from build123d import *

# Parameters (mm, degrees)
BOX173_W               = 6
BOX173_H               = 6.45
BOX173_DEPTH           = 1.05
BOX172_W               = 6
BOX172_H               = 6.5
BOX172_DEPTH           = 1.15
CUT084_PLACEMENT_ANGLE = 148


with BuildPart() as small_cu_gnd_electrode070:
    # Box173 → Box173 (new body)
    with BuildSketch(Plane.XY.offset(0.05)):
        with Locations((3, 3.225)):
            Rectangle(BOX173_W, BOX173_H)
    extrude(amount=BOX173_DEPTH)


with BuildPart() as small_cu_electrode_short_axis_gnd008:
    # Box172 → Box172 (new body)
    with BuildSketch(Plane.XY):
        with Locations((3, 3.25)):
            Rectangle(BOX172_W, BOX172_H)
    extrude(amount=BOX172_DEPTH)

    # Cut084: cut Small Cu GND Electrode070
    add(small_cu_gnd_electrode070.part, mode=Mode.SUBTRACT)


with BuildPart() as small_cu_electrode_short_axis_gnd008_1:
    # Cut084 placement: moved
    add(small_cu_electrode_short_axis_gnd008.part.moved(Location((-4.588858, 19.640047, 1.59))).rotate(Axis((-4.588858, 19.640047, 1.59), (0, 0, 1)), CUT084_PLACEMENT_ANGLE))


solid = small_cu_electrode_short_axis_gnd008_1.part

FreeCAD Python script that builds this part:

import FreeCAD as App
import Part
import Sketcher

V = App.Vector

doc = App.newDocument("Part")
body = doc.addObject("PartDesign::Body", "Body")

# Sketch on XY plane
sketch1 = doc.addObject("Sketcher::SketchObject", "Sketch")
body.addObject(sketch1)
sketch1.AttachmentSupport = (doc.XY_Plane, [""])
sketch1.MapMode = "FlatFace"
sketch1.AttachmentOffset = App.Placement(V(0, 0, 0.05), App.Rotation())
sketch1.addGeometry([
    Part.LineSegment(V(0, 6.45, 0), V(0, 0, 0)),
    Part.LineSegment(V(0, 0, 0), V(6, 0, 0)),
    Part.LineSegment(V(6, 0, 0), V(6, 6.45, 0)),
    Part.LineSegment(V(6, 6.45, 0), V(0, 6.45, 0)),
], False)
sketch1.addConstraint([
    Sketcher.Constraint("Coincident", 0, 2, 1, 1),
    Sketcher.Constraint("Coincident", 1, 2, 2, 1),
    Sketcher.Constraint("Coincident", 2, 2, 3, 1),
    Sketcher.Constraint("Coincident", 3, 2, 0, 1),
    Sketcher.Constraint("Vertical", 0),
    Sketcher.Constraint("Horizontal", 1),
    Sketcher.Constraint("Vertical", 2),
    Sketcher.Constraint("Horizontal", 3),
    Sketcher.Constraint("Coincident", 0, 2, -1, 1),
    Sketcher.Constraint("DistanceX", 1, 1, 1, 2, 6.0),
    Sketcher.Constraint("DistanceY", 0, 2, 0, 1, 6.45),
])
pad1 = doc.addObject("PartDesign::Pad", "Pad")
body.addObject(pad1)
pad1.Profile = sketch1
pad1.Length = 1.05
body2 = doc.addObject("PartDesign::Body", "Body001")

# Sketch on XY plane
sketch2 = doc.addObject("Sketcher::SketchObject", "Sketch001")
body2.addObject(sketch2)
sketch2.AttachmentSupport = (doc.getObject("XY_Plane001"), [""])
sketch2.MapMode = "FlatFace"
sketch2.addGeometry([
    Part.LineSegment(V(0, 6.5, 0), V(0, 0, 0)),
    Part.LineSegment(V(0, 0, 0), V(6, 0, 0)),
    Part.LineSegment(V(6, 0, 0), V(6, 6.5, 0)),
    Part.LineSegment(V(6, 6.5, 0), V(0, 6.5, 0)),
], False)
sketch2.addConstraint([
    Sketcher.Constraint("Coincident", 0, 2, 1, 1),
    Sketcher.Constraint("Coincident", 1, 2, 2, 1),
    Sketcher.Constraint("Coincident", 2, 2, 3, 1),
    Sketcher.Constraint("Coincident", 3, 2, 0, 1),
    Sketcher.Constraint("Vertical", 0),
    Sketcher.Constraint("Horizontal", 1),
    Sketcher.Constraint("Vertical", 2),
    Sketcher.Constraint("Horizontal", 3),
    Sketcher.Constraint("Coincident", 0, 2, -1, 1),
    Sketcher.Constraint("DistanceX", 1, 1, 1, 2, 6.0),
    Sketcher.Constraint("DistanceY", 0, 2, 0, 1, 6.5),
])
pad2 = doc.addObject("PartDesign::Pad", "Pad001")
body2.addObject(pad2)
pad2.Profile = sketch2
pad2.Length = 1.15
doc.recompute()

boolean = doc.addObject("PartDesign::Boolean", "Boolean")
body2.addObject(boolean)
boolean.Type = "Cut"
boolean.addObjects([body])
body3 = doc.addObject("PartDesign::Body", "Body002")
doc.recompute()

body2.Placement = App.Placement(V(-4.588858, 19.640047, 1.59), App.Rotation(V(0, 0, 1), 148))
boolean2 = doc.addObject("PartDesign::Boolean", "Boolean001")
body3.addObject(boolean2)
boolean2.Type = "Fuse"
boolean2.addObjects([body2])

doc.recompute()
